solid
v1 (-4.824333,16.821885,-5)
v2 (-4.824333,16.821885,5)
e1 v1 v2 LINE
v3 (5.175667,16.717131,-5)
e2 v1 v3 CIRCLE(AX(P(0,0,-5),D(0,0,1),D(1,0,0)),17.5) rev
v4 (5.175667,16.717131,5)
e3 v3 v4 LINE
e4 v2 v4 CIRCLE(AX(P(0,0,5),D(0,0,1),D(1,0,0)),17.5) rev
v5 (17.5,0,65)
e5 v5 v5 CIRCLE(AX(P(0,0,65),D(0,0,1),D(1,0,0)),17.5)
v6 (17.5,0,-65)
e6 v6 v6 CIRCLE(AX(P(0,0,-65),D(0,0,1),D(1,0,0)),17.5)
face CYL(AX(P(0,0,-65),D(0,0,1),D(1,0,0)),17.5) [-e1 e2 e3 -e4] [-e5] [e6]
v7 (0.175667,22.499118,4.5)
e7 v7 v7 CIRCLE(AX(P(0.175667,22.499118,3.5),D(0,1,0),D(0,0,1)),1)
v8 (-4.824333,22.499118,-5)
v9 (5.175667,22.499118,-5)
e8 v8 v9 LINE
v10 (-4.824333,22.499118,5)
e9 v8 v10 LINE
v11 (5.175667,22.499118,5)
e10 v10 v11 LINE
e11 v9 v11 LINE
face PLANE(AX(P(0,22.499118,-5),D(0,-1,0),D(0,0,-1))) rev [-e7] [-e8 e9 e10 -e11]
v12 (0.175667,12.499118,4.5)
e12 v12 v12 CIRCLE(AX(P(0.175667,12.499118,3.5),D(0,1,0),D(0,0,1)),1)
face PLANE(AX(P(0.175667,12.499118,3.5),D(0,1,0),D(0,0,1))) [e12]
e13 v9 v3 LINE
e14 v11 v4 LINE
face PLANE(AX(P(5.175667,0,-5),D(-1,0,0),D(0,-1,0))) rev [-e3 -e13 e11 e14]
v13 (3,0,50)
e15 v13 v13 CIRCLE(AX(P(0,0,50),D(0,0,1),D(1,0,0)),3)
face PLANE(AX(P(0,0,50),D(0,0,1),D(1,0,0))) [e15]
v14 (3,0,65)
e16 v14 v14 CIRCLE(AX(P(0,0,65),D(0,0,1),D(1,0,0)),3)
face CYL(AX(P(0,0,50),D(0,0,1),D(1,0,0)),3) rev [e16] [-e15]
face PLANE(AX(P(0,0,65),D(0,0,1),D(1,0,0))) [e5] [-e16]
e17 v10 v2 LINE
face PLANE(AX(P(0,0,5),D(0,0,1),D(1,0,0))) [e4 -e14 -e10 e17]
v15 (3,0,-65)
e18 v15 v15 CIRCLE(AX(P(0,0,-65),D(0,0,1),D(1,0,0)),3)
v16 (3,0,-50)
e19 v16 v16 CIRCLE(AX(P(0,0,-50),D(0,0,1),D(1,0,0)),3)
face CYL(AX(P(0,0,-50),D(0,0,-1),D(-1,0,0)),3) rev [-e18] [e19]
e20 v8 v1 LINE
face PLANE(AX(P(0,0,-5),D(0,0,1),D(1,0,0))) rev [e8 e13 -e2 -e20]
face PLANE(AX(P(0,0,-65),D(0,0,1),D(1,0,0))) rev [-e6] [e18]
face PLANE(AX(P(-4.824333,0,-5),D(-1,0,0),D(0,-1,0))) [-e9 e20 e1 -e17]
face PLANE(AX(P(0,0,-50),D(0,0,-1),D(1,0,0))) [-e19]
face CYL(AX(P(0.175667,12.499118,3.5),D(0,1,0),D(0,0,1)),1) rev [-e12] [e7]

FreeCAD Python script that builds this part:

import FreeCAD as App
import Part
import Sketcher

doc = App.newDocument("Part")
body = doc.addObject("PartDesign::Body", "Body")

# Sketch on XY plane
sketch1 = body.newObject("Sketcher::SketchObject", "Sketch")
sketch1.AttachmentSupport = (doc.getObject("XY_Plane"), [""])
sketch1.MapMode = "FlatFace"
sketch1.addGeometry(Part.Circle(App.Vector(0, 0, 0), App.Vector(0, 0, 1), 18), False)
sketch1.addConstraint(Sketcher.Constraint("Coincident", 0, 3, -1, 1))
sketch1.addConstraint(Sketcher.Constraint("Diameter", 0, 35.0))
pad1 = body.newObject("PartDesign::Pad", "Pad")
pad1.Profile = sketch1
pad1.Type = "TwoLengths"
pad1.Length = 65
pad1.Length2 = 65

# Sketch on XY plane
sketch2 = body.newObject("Sketcher::SketchObject", "Sketch001")
sketch2.AttachmentSupport = (doc.getObject("XY_Plane"), [""])
sketch2.MapMode = "FlatFace"
sketch2.addGeometry(Part.LineSegment(App.Vector(-5, 22, 0), App.Vector(-5, 12, 0)), False)
sketch2.addGeometry(Part.LineSegment(App.Vector(-5, 12, 0), App.Vector(5, 12, 0)), False)
sketch2.addGeometry(Part.LineSegment(App.Vector(5, 12, 0), App.Vector(5, 22, 0)), False)
sketch2.addGeometry(Part.LineSegment(App.Vector(5, 22, 0), App.Vector(-5, 22, 0)), False)
sketch2.addConstraint(Sketcher.Constraint("Coincident", 0, 2, 1, 1))
sketch2.addConstraint(Sketcher.Constraint("Coincident", 1, 2, 2, 1))
sketch2.addConstraint(Sketcher.Constraint("Coincident", 2, 2, 3, 1))
sketch2.addConstraint(Sketcher.Constraint("Coincident", 3, 2, 0, 1))
sketch2.addConstraint(Sketcher.Constraint("Vertical", 0))
sketch2.addConstraint(Sketcher.Constraint("Horizontal", 1))
sketch2.addConstraint(Sketcher.Constraint("Vertical", 2))
sketch2.addConstraint(Sketcher.Constraint("Horizontal", 3))
sketch2.addConstraint(Sketcher.Constraint("Equal", 3, 0))
sketch2.addConstraint(Sketcher.Constraint("DistanceX", 1, 1, 1, 2, 10.0))
sketch2.addConstraint(Sketcher.Constraint("DistanceY", -1, 1, 0, 2, 12.499118))
sketch2.addConstraint(Sketcher.Constraint("DistanceX", 0, 2, -1, 1, 4.824333))
pad2 = body.newObject("PartDesign::Pad", "Pad001")
pad2.Profile = sketch2
pad2.Type = "TwoLengths"
pad2.Length = 5
pad2.Length2 = 5

# Sketch on XY plane
sketch3 = body.newObject("Sketcher::SketchObject", "Sketch002")
sketch3.AttachmentSupport = (doc.getObject("XY_Plane"), [""])
sketch3.MapMode = "FlatFace"
sketch3.AttachmentOffset = App.Placement(App.Vector(0, 0, 65), App.Rotation())
sketch3.addGeometry(Part.Circle(App.Vector(0, 0, 0), App.Vector(0, 0, 1), 3), False)
sketch3.addConstraint(Sketcher.Constraint("Coincident", 0, 3, -1, 1))
sketch3.addConstraint(Sketcher.Constraint("Diameter", 0, 6.0))
pocket1 = body.newObject("PartDesign::Pocket", "Pocket")
pocket1.Profile = sketch3
pocket1.Length = 15
doc.recompute()

mirrored = body.newObject("PartDesign::Mirrored", "Mirrored")
mirrored.Originals = [pocket1]
mirrored.MirrorPlane = (doc.getObject("XY_Plane"), [""])
body.Tip = mirrored

# Sketch on XZ plane
sketch4 = body.newObject("Sketcher::SketchObject", "Sketch003")
sketch4.AttachmentSupport = (doc.getObject("XZ_Plane"), [""])
sketch4.MapMode = "FlatFace"
sketch4.AttachmentOffset = App.Placement(App.Vector(0, 0, -22.499118), App.Rotation())
sketch4.addGeometry(Part.Circle(App.Vector(0.2, 3.5, 0), App.Vector(0, 0, 1), 1), False)
sketch4.addConstraint(Sketcher.Constraint("Diameter", 0, 2.0))
sketch4.addConstraint(Sketcher.Constraint("DistanceY", -1, 1, 0, 3, 3.5))
sketch4.addConstraint(Sketcher.Constraint("DistanceX", -1, 1, 0, 3, 0.175667))
pocket2 = body.newObject("PartDesign::Pocket", "Pocket001")
pocket2.Profile = sketch4
pocket2.Length = 10
pocket2.Reversed = True

doc.recompute()
